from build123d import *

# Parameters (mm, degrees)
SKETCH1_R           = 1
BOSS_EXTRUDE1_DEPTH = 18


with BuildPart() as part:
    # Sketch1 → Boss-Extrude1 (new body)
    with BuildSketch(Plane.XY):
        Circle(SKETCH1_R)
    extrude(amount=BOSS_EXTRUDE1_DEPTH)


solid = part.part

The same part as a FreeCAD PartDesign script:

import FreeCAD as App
import Part
import Sketcher
Q = App.Units.Quantity

doc = App.newDocument("Part")
body = doc.addObject("PartDesign::Body", "Body")

# Sketch on XY plane
sketch1 = body.newObject("Sketcher::SketchObject", "Sketch")
sketch1.AttachmentSupport = (doc.getObject("XY_Plane"), [""])
sketch1.MapMode = "FlatFace"
sketch1.addGeometry(Part.Circle(App.Vector(0, 0, 0), App.Vector(0, 0, 1), 1), False)
sketch1.addConstraint(Sketcher.Constraint("Coincident", 0, 3, -1, 1))
sketch1.addConstraint(Sketcher.Constraint("Diameter", 0, Q("2 mm")))
pad1 = body.newObject("PartDesign::Pad", "Pad")
pad1.Profile = sketch1
pad1.Length = 18

doc.recompute()
